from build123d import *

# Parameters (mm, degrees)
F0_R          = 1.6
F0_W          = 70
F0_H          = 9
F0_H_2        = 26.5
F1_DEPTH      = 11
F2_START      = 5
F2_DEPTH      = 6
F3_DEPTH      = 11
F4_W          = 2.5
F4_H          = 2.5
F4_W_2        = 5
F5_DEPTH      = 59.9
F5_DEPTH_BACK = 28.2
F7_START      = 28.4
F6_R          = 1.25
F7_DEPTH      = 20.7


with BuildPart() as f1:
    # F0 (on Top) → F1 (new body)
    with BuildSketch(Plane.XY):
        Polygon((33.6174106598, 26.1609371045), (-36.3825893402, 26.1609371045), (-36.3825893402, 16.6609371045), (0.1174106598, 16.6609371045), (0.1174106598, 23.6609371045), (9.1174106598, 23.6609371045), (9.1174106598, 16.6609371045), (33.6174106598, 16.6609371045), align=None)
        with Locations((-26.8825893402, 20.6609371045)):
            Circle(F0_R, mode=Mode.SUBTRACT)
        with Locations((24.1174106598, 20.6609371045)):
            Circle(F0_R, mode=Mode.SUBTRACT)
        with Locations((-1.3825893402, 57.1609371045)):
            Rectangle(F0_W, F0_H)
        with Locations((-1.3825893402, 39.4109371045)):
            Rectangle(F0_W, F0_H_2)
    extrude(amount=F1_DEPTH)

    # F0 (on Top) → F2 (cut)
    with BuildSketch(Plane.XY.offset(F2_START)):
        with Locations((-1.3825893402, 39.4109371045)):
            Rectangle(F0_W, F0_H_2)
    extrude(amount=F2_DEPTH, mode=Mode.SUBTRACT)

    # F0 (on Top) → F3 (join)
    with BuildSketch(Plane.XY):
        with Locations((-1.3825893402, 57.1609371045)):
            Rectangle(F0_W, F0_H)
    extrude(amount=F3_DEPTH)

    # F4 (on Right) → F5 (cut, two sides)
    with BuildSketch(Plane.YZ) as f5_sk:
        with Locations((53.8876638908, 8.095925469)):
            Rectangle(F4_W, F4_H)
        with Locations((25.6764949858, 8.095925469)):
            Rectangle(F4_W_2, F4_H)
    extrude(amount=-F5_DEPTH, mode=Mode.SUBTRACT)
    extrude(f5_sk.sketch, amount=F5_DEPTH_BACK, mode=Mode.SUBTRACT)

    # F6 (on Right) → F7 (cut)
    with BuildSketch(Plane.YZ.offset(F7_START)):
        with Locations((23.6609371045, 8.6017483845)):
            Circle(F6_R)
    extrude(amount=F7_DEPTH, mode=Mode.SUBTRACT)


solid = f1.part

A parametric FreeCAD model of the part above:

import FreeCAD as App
import Part
import Sketcher

V = App.Vector
Q = App.Units.Quantity

doc = App.newDocument("Part")
body = doc.addObject("PartDesign::Body", "Body")

# Sketch on XY plane
sketch1 = body.newObject("Sketcher::SketchObject", "Sketch")
sketch1.AttachmentSupport = (doc.getObject("XY_Plane"), [""])
sketch1.MapMode = "FlatFace"
sketch1.addGeometry(Part.LineSegment(V(33.6, 16.7, 0), V(33.6, 61.7, 0)), False)
sketch1.addGeometry(Part.LineSegment(V(33.6, 61.7, 0), V(-36.4, 61.7, 0)), False)
sketch1.addGeometry(Part.LineSegment(V(-36.4, 61.7, 0), V(-36.4, 16.7, 0)), False)
sketch1.addGeometry(Part.LineSegment(V(-36.4, 16.7, 0), V(0.1, 16.7, 0)), False)
sketch1.addGeometry(Part.LineSegment(V(0.1, 16.7, 0), V(0.1, 23.7, 0)), False)
sketch1.addGeometry(Part.LineSegment(V(0.1, 23.7, 0), V(9.1, 23.7, 0)), False)
sketch1.addGeometry(Part.LineSegment(V(9.1, 23.7, 0), V(9.1, 16.7, 0)), False)
sketch1.addGeometry(Part.LineSegment(V(9.1, 16.7, 0), V(33.6, 16.7, 0)), False)
sketch1.addGeometry(Part.Circle(V(-26.9, 20.7, 0), V(0, 0, 1), 1.6), False)
sketch1.addGeometry(Part.Circle(V(24.1, 20.7, 0), V(0, 0, 1), 1.6), False)
sketch1.addConstraint(Sketcher.Constraint("Coincident", 0, 2, 1, 1))
sketch1.addConstraint(Sketcher.Constraint("Coincident", 1, 2, 2, 1))
sketch1.addConstraint(Sketcher.Constraint("Coincident", 2, 2, 3, 1))
sketch1.addConstraint(Sketcher.Constraint("Coincident", 3, 2, 4, 1))
sketch1.addConstraint(Sketcher.Constraint("Coincident", 4, 2, 5, 1))
sketch1.addConstraint(Sketcher.Constraint("Coincident", 5, 2, 6, 1))
sketch1.addConstraint(Sketcher.Constraint("Coincident", 6, 2, 7, 1))
sketch1.addConstraint(Sketcher.Constraint("Coincident", 7, 2, 0, 1))
sketch1.addConstraint(Sketcher.Constraint("Vertical", 0))
sketch1.addConstraint(Sketcher.Constraint("Horizontal", 1))
sketch1.addConstraint(Sketcher.Constraint("Vertical", 2))
sketch1.addConstraint(Sketcher.Constraint("Horizontal", 3))
sketch1.addConstraint(Sketcher.Constraint("Vertical", 4))
sketch1.addConstraint(Sketcher.Constraint("Horizontal", 5))
sketch1.addConstraint(Sketcher.Constraint("Vertical", 6))
sketch1.addConstraint(Sketcher.Constraint("Horizontal", 7))
sketch1.addConstraint(Sketcher.Constraint("Equal", 8, 9))
sketch1.addConstraint(Sketcher.Constraint("Horizontal", 8, 3, 9, 3))
sketch1.addConstraint(Sketcher.Constraint("Horizontal", 3, 2, 6, 2))
sketch1.addConstraint(Sketcher.Constraint("Diameter", 8, Q("3.2 mm")))
sketch1.addConstraint(Sketcher.Constraint("DistanceX", 1, 2, 1, 1, Q("70 mm")))
sketch1.addConstraint(Sketcher.Constraint("DistanceX", 5, 1, 5, 2, Q("9 mm")))
sketch1.addConstraint(Sketcher.Constraint("DistanceY", 0, 1, 0, 2, Q("45 mm")))
sketch1.addConstraint(Sketcher.Constraint("DistanceY", 4, 1, 4, 2, Q("7 mm")))
sketch1.addConstraint(Sketcher.Constraint("DistanceX", 3, 1, 3, 2, Q("36.5 mm")))
sketch1.addConstraint(Sketcher.Constraint("DistanceX", 8, 3, 9, 3, Q("51 mm")))
sketch1.addConstraint(Sketcher.Constraint("DistanceY", 9, 3, 0, 2, Q("41 mm")))
sketch1.addConstraint(Sketcher.Constraint("DistanceX", 3, 2, 9, 3, Q("24 mm")))
sketch1.addConstraint(Sketcher.Constraint("DistanceX", 8, 3, -1, 1, Q("26.882589 mm")))
sketch1.addConstraint(Sketcher.Constraint("DistanceY", -1, 1, 8, 3, Q("20.660937 mm")))
pad1 = body.newObject("PartDesign::Pad", "Pad")
pad1.Profile = sketch1
pad1.Length = 11

# Sketch on XY plane
sketch2 = body.newObject("Sketcher::SketchObject", "Sketch001")
sketch2.AttachmentSupport = (doc.getObject("XY_Plane"), [""])
sketch2.MapMode = "FlatFace"
sketch2.AttachmentOffset = App.Placement(V(0, 0, 5), App.Rotation())
sketch2.addGeometry(Part.LineSegment(V(-36, 53, 0), V(-36, 26, 0)), False)
sketch2.addGeometry(Part.LineSegment(V(-36, 26, 0), V(34, 26, 0)), False)
sketch2.addGeometry(Part.LineSegment(V(34, 26, 0), V(34, 53, 0)), False)
sketch2.addGeometry(Part.LineSegment(V(34, 53, 0), V(-36, 53, 0)), False)
sketch2.addConstraint(Sketcher.Constraint("Coincident", 0, 2, 1, 1))
sketch2.addConstraint(Sketcher.Constraint("Coincident", 1, 2, 2, 1))
sketch2.addConstraint(Sketcher.Constraint("Coincident", 2, 2, 3, 1))
sketch2.addConstraint(Sketcher.Constraint("Coincident", 3, 2, 0, 1))
sketch2.addConstraint(Sketcher.Constraint("Vertical", 0))
sketch2.addConstraint(Sketcher.Constraint("Horizontal", 1))
sketch2.addConstraint(Sketcher.Constraint("Vertical", 2))
sketch2.addConstraint(Sketcher.Constraint("Horizontal", 3))
sketch2.addConstraint(Sketcher.Constraint("DistanceX", 1, 1, 1, 2, Q("70 mm")))
sketch2.addConstraint(Sketcher.Constraint("DistanceY", 0, 2, 0, 1, Q("26.5 mm")))
sketch2.addConstraint(Sketcher.Constraint("DistanceX", 0, 2, -1, 1, Q("36.382589 mm")))
sketch2.addConstraint(Sketcher.Constraint("DistanceY", -1, 1, 0, 2, Q("26.160937 mm")))
pocket1 = body.newObject("PartDesign::Pocket", "Pocket")
pocket1.Profile = sketch2
pocket1.Length = 6
pocket1.Reversed = True

# Sketch on XY plane
sketch3 = body.newObject("Sketcher::SketchObject", "Sketch002")
sketch3.AttachmentSupport = (doc.getObject("XY_Plane"), [""])
sketch3.MapMode = "FlatFace"
sketch3.addGeometry(Part.LineSegment(V(-36, 62, 0), V(-36, 53, 0)), False)
sketch3.addGeometry(Part.LineSegment(V(-36, 53, 0), V(34, 53, 0)), False)
sketch3.addGeometry(Part.LineSegment(V(34, 53, 0), V(34, 62, 0)), False)
sketch3.addGeometry(Part.LineSegment(V(34, 62, 0), V(-36, 62, 0)), False)
sketch3.addConstraint(Sketcher.Constraint("Coincident", 0, 2, 1, 1))
sketch3.addConstraint(Sketcher.Constraint("Coincident", 1, 2, 2, 1))
sketch3.addConstraint(Sketcher.Constraint("Coincident", 2, 2, 3, 1))
sketch3.addConstraint(Sketcher.Constraint("Coincident", 3, 2, 0, 1))
sketch3.addConstraint(Sketcher.Constraint("Vertical", 0))
sketch3.addConstraint(Sketcher.Constraint("Horizontal", 1))
sketch3.addConstraint(Sketcher.Constraint("Vertical", 2))
sketch3.addConstraint(Sketcher.Constraint("Horizontal", 3))
sketch3.addConstraint(Sketcher.Constraint("DistanceX", 1, 1, 1, 2, Q("70 mm")))
sketch3.addConstraint(Sketcher.Constraint("DistanceY", 0, 2, 0, 1, Q("9 mm")))
sketch3.addConstraint(Sketcher.Constraint("DistanceX", 0, 2, -1, 1, Q("36.382589 mm")))
sketch3.addConstraint(Sketcher.Constraint("DistanceY", -1, 1, 0, 2, Q("52.660937 mm")))
pad2 = body.newObject("PartDesign::Pad", "Pad001")
pad2.Profile = sketch3
pad2.Length = 11

# Sketch on YZ plane
sketch4 = body.newObject("Sketcher::SketchObject", "Sketch003")
sketch4.AttachmentSupport = (doc.getObject("YZ_Plane"), [""])
sketch4.MapMode = "FlatFace"
sketch4.addGeometry(Part.LineSegment(V(52.6, 9.3, 0), V(52.6, 6.8, 0)), False)
sketch4.addGeometry(Part.LineSegment(V(52.6, 6.8, 0), V(55.1, 6.8, 0)), False)
sketch4.addGeometry(Part.LineSegment(V(55.1, 6.8, 0), V(55.1, 9.3, 0)), False)
sketch4.addGeometry(Part.LineSegment(V(55.1, 9.3, 0), V(52.6, 9.3, 0)), False)
sketch4.addGeometry(Part.LineSegment(V(23.2, 9.3, 0), V(23.2, 6.8, 0)), False)
sketch4.addGeometry(Part.LineSegment(V(23.2, 6.8, 0), V(28.2, 6.8, 0)), False)
sketch4.addGeometry(Part.LineSegment(V(28.2, 6.8, 0), V(28.2, 9.3, 0)), False)
sketch4.addGeometry(Part.LineSegment(V(28.2, 9.3, 0), V(23.2, 9.3, 0)), False)
sketch4.addConstraint(Sketcher.Constraint("Coincident", 0, 2, 1, 1))
sketch4.addConstraint(Sketcher.Constraint("Coincident", 1, 2, 2, 1))
sketch4.addConstraint(Sketcher.Constraint("Coincident", 2, 2, 3, 1))
sketch4.addConstraint(Sketcher.Constraint("Coincident", 3, 2, 0, 1))
sketch4.addConstraint(Sketcher.Constraint("Coincident", 4, 2, 5, 1))
sketch4.addConstraint(Sketcher.Constraint("Coincident", 5, 2, 6, 1))
sketch4.addConstraint(Sketcher.Constraint("Coincident", 6, 2, 7, 1))
sketch4.addConstraint(Sketcher.Constraint("Coincident", 7, 2, 4, 1))
sketch4.addConstraint(Sketcher.Constraint("Vertical", 0))
sketch4.addConstraint(Sketcher.Constraint("Horizontal", 1))
sketch4.addConstraint(Sketcher.Constraint("Vertical", 2))
sketch4.addConstraint(Sketcher.Constraint("Horizontal", 3))
sketch4.addConstraint(Sketcher.Constraint("Vertical", 4))
sketch4.addConstraint(Sketcher.Constraint("Horizontal", 5))
sketch4.addConstraint(Sketcher.Constraint("Vertical", 6))
sketch4.addConstraint(Sketcher.Constraint("Horizontal", 7))
sketch4.addConstraint(Sketcher.Constraint("Horizontal", 1, 2, 4, 2))
sketch4.addConstraint(Sketcher.Constraint("Horizontal", 3, 2, 6, 2))
sketch4.addConstraint(Sketcher.Constraint("Equal", 3, 0))
sketch4.addConstraint(Sketcher.Constraint("DistanceX", 5, 1, 5, 2, Q("5 mm")))
sketch4.addConstraint(Sketcher.Constraint("DistanceX", 1, 1, 1, 2, Q("2.5 mm")))
sketch4.addConstraint(Sketcher.Constraint("DistanceX", 4, 2, 0, 2, Q("29.461169 mm")))
sketch4.addConstraint(Sketcher.Constraint("DistanceX", -1, 1, 0, 2, Q("52.637664 mm")))
sketch4.addConstraint(Sketcher.Constraint("DistanceY", -1, 1, 0, 2, Q("6.845925 mm")))
pocket2 = body.newObject("PartDesign::Pocket", "Pocket001")
pocket2.Profile = sketch4
pocket2.Type = "TwoLengths"
pocket2.Length = 59.9
pocket2.Length2 = 28.2

# Sketch on YZ plane
sketch5 = body.newObject("Sketcher::SketchObject", "Sketch004")
sketch5.AttachmentSupport = (doc.getObject("YZ_Plane"), [""])
sketch5.MapMode = "FlatFace"
sketch5.AttachmentOffset = App.Placement(V(0, 0, 28.4), App.Rotation())
sketch5.addGeometry(Part.Circle(V(23.7, 8.6, 0), V(0, 0, 1), 1.2), False)
sketch5.addConstraint(Sketcher.Constraint("Diameter", 0, Q("2.5 mm")))
sketch5.addConstraint(Sketcher.Constraint("DistanceY", -1, 1, 0, 3, Q("8.601748 mm")))
sketch5.addConstraint(Sketcher.Constraint("DistanceX", -1, 1, 0, 3, Q("23.660937 mm")))
pocket3 = body.newObject("PartDesign::Pocket", "Pocket002")
pocket3.Profile = sketch5
pocket3.Length = 20.7
pocket3.Reversed = True

doc.recompute()
